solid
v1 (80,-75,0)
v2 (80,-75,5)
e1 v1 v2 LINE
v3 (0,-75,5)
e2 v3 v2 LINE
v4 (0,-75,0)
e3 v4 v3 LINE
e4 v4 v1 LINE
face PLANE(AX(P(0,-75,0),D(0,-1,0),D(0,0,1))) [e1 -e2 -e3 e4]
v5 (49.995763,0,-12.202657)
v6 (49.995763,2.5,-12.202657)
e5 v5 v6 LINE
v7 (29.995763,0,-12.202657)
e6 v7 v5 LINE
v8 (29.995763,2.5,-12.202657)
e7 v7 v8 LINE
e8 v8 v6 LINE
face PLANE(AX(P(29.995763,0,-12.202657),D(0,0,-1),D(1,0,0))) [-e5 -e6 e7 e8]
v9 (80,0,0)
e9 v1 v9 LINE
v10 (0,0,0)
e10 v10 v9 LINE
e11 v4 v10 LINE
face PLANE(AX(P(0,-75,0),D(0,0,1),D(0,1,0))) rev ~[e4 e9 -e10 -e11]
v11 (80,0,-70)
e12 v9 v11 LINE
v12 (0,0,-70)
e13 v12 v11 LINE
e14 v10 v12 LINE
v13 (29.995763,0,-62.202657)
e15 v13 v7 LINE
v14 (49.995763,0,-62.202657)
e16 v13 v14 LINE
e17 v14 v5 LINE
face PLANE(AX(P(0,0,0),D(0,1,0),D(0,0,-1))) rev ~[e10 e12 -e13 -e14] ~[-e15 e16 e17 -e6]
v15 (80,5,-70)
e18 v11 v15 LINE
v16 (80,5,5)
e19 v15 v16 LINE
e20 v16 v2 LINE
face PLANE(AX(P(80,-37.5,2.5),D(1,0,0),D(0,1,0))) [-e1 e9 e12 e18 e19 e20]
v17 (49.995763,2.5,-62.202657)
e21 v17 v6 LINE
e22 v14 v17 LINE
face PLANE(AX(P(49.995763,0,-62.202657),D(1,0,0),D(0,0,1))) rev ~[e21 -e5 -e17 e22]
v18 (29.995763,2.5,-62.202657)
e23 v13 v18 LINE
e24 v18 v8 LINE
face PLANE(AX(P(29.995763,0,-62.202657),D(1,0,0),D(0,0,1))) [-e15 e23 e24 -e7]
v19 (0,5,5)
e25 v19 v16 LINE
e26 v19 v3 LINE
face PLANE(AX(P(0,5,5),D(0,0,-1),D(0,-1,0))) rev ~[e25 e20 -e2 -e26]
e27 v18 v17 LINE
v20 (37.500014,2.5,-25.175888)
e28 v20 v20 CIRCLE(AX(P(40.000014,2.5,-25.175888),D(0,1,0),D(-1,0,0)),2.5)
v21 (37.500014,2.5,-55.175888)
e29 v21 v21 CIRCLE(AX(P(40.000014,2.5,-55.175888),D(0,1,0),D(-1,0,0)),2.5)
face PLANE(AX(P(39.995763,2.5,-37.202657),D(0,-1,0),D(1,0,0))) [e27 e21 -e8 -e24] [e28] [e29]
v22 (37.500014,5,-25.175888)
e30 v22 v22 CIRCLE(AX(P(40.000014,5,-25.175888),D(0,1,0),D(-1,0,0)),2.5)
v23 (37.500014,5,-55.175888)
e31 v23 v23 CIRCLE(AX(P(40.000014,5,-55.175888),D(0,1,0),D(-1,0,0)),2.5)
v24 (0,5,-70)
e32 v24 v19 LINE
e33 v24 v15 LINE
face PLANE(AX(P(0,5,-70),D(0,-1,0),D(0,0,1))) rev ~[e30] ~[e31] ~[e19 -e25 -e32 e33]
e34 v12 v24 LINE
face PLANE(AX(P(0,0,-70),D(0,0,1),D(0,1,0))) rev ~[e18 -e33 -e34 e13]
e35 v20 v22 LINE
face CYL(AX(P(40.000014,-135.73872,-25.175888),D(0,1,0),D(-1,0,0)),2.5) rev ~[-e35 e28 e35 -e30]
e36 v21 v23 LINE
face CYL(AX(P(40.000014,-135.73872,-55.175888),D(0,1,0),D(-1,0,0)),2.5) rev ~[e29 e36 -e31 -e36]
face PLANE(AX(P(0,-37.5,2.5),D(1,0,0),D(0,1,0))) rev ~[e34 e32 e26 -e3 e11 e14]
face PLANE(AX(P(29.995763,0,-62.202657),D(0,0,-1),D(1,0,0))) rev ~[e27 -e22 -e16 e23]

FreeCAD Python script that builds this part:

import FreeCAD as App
import Part
import Sketcher

V = App.Vector

doc = App.newDocument("Part")
body = doc.addObject("PartDesign::Body", "Body")

sketch1 = body.newObject("Sketcher::SketchObject", "Sketch")
sketch1.AttachmentSupport = (doc.getObject("YZ_Plane"), [""])
sketch1.MapMode = "FlatFace"
sketch1.addGeometry(Part.LineSegment(V(-75, 5, 0), V(-75, 0, 0)), False)
sketch1.addGeometry(Part.LineSegment(V(-75, 0, 0), V(0, 0, 0)), False)
sketch1.addGeometry(Part.LineSegment(V(0, 0, 0), V(0, -70, 0)), False)
sketch1.addGeometry(Part.LineSegment(V(0, -70, 0), V(5, -70, 0)), False)
sketch1.addGeometry(Part.LineSegment(V(5, -70, 0), V(5, 5, 0)), False)
sketch1.addGeometry(Part.LineSegment(V(5, 5, 0), V(-75, 5, 0)), False)
sketch1.addConstraint(Sketcher.Constraint("Coincident", 0, 2, 1, 1))
sketch1.addConstraint(Sketcher.Constraint("Coincident", 1, 2, 2, 1))
sketch1.addConstraint(Sketcher.Constraint("Coincident", 2, 2, 3, 1))
sketch1.addConstraint(Sketcher.Constraint("Coincident", 3, 2, 4, 1))
sketch1.addConstraint(Sketcher.Constraint("Coincident", 4, 2, 5, 1))
sketch1.addConstraint(Sketcher.Constraint("Coincident", 5, 2, 0, 1))
sketch1.addConstraint(Sketcher.Constraint("Vertical", 0))
sketch1.addConstraint(Sketcher.Constraint("Horizontal", 1))
sketch1.addConstraint(Sketcher.Constraint("Vertical", 2))
sketch1.addConstraint(Sketcher.Constraint("Horizontal", 3))
sketch1.addConstraint(Sketcher.Constraint("Vertical", 4))
sketch1.addConstraint(Sketcher.Constraint("Horizontal", 5))
sketch1.addConstraint(Sketcher.Constraint("Coincident", 1, 2, -1, 1))
sketch1.addConstraint(Sketcher.Constraint("Equal", 3, 0))
sketch1.addConstraint(Sketcher.Constraint("Equal", 1, 4))
sketch1.addConstraint(Sketcher.Constraint("DistanceX", 1, 1, 1, 2, 75.0))
sketch1.addConstraint(Sketcher.Constraint("DistanceX", 3, 1, 3, 2, 5.0))
pad1 = body.newObject("PartDesign::Pad", "Pad")
pad1.Profile = sketch1
pad1.Length = 80

sketch2 = body.newObject("Sketcher::SketchObject", "Sketch001")
sketch2.AttachmentSupport = (doc.getObject("XZ_Plane"), [""])
sketch2.MapMode = "FlatFace"
sketch2.addGeometry(Part.LineSegment(V(30, -12, 0), V(30, -62, 0)), False)
sketch2.addGeometry(Part.LineSegment(V(30, -62, 0), V(50, -62, 0)), False)
sketch2.addGeometry(Part.LineSegment(V(50, -62, 0), V(50, -12, 0)), False)
sketch2.addGeometry(Part.LineSegment(V(50, -12, 0), V(30, -12, 0)), False)
sketch2.addConstraint(Sketcher.Constraint("Coincident", 0, 2, 1, 1))
sketch2.addConstraint(Sketcher.Constraint("Coincident", 1, 2, 2, 1))
sketch2.addConstraint(Sketcher.Constraint("Coincident", 2, 2, 3, 1))
sketch2.addConstraint(Sketcher.Constraint("Coincident", 3, 2, 0, 1))
sketch2.addConstraint(Sketcher.Constraint("Vertical", 0))
sketch2.addConstraint(Sketcher.Constraint("Horizontal", 1))
sketch2.addConstraint(Sketcher.Constraint("Vertical", 2))
sketch2.addConstraint(Sketcher.Constraint("Horizontal", 3))
sketch2.addConstraint(Sketcher.Constraint("DistanceX", 1, 1, 1, 2, 20.0))
sketch2.addConstraint(Sketcher.Constraint("DistanceY", 0, 2, 0, 1, 50.0))
sketch2.addConstraint(Sketcher.Constraint("DistanceX", -1, 1, 0, 2, 29.995763))
sketch2.addConstraint(Sketcher.Constraint("DistanceY", 0, 2, -1, 1, 62.202657))
pocket1 = body.newObject("PartDesign::Pocket", "Pocket")
pocket1.Profile = sketch2
pocket1.Length = 2.5

sketch3 = body.newObject("Sketcher::SketchObject", "Sketch002")
sketch3.AttachmentSupport = (doc.getObject("XZ_Plane"), [""])
sketch3.MapMode = "FlatFace"
sketch3.addGeometry(Part.Circle(V(40, -25.2, 0), V(0, 0, 1), 2.5), False)
sketch3.addGeometry(Part.Circle(V(40, -55.2, 0), V(0, 0, 1), 2.5), False)
sketch3.addConstraint(Sketcher.Constraint("Equal", 0, 1))
sketch3.addConstraint(Sketcher.Constraint("Vertical", 0, 3, 1, 3))
sketch3.addConstraint(Sketcher.Constraint("Diameter", 0, 5.0))
sketch3.addConstraint(Sketcher.Constraint("DistanceY", 1, 3, 0, 3, 30.0))
sketch3.addConstraint(Sketcher.Constraint("DistanceY", 0, 3, -1, 1, 25.175888))
sketch3.addConstraint(Sketcher.Constraint("DistanceX", -1, 1, 0, 3, 40.000014))
doc.recompute()
hole = body.newObject("PartDesign::Hole", "Hole")
hole.Profile = sketch3
hole.ThreadType = "None"
hole.Diameter = 5
hole.DepthType = "ThroughAll"

doc.recompute()
